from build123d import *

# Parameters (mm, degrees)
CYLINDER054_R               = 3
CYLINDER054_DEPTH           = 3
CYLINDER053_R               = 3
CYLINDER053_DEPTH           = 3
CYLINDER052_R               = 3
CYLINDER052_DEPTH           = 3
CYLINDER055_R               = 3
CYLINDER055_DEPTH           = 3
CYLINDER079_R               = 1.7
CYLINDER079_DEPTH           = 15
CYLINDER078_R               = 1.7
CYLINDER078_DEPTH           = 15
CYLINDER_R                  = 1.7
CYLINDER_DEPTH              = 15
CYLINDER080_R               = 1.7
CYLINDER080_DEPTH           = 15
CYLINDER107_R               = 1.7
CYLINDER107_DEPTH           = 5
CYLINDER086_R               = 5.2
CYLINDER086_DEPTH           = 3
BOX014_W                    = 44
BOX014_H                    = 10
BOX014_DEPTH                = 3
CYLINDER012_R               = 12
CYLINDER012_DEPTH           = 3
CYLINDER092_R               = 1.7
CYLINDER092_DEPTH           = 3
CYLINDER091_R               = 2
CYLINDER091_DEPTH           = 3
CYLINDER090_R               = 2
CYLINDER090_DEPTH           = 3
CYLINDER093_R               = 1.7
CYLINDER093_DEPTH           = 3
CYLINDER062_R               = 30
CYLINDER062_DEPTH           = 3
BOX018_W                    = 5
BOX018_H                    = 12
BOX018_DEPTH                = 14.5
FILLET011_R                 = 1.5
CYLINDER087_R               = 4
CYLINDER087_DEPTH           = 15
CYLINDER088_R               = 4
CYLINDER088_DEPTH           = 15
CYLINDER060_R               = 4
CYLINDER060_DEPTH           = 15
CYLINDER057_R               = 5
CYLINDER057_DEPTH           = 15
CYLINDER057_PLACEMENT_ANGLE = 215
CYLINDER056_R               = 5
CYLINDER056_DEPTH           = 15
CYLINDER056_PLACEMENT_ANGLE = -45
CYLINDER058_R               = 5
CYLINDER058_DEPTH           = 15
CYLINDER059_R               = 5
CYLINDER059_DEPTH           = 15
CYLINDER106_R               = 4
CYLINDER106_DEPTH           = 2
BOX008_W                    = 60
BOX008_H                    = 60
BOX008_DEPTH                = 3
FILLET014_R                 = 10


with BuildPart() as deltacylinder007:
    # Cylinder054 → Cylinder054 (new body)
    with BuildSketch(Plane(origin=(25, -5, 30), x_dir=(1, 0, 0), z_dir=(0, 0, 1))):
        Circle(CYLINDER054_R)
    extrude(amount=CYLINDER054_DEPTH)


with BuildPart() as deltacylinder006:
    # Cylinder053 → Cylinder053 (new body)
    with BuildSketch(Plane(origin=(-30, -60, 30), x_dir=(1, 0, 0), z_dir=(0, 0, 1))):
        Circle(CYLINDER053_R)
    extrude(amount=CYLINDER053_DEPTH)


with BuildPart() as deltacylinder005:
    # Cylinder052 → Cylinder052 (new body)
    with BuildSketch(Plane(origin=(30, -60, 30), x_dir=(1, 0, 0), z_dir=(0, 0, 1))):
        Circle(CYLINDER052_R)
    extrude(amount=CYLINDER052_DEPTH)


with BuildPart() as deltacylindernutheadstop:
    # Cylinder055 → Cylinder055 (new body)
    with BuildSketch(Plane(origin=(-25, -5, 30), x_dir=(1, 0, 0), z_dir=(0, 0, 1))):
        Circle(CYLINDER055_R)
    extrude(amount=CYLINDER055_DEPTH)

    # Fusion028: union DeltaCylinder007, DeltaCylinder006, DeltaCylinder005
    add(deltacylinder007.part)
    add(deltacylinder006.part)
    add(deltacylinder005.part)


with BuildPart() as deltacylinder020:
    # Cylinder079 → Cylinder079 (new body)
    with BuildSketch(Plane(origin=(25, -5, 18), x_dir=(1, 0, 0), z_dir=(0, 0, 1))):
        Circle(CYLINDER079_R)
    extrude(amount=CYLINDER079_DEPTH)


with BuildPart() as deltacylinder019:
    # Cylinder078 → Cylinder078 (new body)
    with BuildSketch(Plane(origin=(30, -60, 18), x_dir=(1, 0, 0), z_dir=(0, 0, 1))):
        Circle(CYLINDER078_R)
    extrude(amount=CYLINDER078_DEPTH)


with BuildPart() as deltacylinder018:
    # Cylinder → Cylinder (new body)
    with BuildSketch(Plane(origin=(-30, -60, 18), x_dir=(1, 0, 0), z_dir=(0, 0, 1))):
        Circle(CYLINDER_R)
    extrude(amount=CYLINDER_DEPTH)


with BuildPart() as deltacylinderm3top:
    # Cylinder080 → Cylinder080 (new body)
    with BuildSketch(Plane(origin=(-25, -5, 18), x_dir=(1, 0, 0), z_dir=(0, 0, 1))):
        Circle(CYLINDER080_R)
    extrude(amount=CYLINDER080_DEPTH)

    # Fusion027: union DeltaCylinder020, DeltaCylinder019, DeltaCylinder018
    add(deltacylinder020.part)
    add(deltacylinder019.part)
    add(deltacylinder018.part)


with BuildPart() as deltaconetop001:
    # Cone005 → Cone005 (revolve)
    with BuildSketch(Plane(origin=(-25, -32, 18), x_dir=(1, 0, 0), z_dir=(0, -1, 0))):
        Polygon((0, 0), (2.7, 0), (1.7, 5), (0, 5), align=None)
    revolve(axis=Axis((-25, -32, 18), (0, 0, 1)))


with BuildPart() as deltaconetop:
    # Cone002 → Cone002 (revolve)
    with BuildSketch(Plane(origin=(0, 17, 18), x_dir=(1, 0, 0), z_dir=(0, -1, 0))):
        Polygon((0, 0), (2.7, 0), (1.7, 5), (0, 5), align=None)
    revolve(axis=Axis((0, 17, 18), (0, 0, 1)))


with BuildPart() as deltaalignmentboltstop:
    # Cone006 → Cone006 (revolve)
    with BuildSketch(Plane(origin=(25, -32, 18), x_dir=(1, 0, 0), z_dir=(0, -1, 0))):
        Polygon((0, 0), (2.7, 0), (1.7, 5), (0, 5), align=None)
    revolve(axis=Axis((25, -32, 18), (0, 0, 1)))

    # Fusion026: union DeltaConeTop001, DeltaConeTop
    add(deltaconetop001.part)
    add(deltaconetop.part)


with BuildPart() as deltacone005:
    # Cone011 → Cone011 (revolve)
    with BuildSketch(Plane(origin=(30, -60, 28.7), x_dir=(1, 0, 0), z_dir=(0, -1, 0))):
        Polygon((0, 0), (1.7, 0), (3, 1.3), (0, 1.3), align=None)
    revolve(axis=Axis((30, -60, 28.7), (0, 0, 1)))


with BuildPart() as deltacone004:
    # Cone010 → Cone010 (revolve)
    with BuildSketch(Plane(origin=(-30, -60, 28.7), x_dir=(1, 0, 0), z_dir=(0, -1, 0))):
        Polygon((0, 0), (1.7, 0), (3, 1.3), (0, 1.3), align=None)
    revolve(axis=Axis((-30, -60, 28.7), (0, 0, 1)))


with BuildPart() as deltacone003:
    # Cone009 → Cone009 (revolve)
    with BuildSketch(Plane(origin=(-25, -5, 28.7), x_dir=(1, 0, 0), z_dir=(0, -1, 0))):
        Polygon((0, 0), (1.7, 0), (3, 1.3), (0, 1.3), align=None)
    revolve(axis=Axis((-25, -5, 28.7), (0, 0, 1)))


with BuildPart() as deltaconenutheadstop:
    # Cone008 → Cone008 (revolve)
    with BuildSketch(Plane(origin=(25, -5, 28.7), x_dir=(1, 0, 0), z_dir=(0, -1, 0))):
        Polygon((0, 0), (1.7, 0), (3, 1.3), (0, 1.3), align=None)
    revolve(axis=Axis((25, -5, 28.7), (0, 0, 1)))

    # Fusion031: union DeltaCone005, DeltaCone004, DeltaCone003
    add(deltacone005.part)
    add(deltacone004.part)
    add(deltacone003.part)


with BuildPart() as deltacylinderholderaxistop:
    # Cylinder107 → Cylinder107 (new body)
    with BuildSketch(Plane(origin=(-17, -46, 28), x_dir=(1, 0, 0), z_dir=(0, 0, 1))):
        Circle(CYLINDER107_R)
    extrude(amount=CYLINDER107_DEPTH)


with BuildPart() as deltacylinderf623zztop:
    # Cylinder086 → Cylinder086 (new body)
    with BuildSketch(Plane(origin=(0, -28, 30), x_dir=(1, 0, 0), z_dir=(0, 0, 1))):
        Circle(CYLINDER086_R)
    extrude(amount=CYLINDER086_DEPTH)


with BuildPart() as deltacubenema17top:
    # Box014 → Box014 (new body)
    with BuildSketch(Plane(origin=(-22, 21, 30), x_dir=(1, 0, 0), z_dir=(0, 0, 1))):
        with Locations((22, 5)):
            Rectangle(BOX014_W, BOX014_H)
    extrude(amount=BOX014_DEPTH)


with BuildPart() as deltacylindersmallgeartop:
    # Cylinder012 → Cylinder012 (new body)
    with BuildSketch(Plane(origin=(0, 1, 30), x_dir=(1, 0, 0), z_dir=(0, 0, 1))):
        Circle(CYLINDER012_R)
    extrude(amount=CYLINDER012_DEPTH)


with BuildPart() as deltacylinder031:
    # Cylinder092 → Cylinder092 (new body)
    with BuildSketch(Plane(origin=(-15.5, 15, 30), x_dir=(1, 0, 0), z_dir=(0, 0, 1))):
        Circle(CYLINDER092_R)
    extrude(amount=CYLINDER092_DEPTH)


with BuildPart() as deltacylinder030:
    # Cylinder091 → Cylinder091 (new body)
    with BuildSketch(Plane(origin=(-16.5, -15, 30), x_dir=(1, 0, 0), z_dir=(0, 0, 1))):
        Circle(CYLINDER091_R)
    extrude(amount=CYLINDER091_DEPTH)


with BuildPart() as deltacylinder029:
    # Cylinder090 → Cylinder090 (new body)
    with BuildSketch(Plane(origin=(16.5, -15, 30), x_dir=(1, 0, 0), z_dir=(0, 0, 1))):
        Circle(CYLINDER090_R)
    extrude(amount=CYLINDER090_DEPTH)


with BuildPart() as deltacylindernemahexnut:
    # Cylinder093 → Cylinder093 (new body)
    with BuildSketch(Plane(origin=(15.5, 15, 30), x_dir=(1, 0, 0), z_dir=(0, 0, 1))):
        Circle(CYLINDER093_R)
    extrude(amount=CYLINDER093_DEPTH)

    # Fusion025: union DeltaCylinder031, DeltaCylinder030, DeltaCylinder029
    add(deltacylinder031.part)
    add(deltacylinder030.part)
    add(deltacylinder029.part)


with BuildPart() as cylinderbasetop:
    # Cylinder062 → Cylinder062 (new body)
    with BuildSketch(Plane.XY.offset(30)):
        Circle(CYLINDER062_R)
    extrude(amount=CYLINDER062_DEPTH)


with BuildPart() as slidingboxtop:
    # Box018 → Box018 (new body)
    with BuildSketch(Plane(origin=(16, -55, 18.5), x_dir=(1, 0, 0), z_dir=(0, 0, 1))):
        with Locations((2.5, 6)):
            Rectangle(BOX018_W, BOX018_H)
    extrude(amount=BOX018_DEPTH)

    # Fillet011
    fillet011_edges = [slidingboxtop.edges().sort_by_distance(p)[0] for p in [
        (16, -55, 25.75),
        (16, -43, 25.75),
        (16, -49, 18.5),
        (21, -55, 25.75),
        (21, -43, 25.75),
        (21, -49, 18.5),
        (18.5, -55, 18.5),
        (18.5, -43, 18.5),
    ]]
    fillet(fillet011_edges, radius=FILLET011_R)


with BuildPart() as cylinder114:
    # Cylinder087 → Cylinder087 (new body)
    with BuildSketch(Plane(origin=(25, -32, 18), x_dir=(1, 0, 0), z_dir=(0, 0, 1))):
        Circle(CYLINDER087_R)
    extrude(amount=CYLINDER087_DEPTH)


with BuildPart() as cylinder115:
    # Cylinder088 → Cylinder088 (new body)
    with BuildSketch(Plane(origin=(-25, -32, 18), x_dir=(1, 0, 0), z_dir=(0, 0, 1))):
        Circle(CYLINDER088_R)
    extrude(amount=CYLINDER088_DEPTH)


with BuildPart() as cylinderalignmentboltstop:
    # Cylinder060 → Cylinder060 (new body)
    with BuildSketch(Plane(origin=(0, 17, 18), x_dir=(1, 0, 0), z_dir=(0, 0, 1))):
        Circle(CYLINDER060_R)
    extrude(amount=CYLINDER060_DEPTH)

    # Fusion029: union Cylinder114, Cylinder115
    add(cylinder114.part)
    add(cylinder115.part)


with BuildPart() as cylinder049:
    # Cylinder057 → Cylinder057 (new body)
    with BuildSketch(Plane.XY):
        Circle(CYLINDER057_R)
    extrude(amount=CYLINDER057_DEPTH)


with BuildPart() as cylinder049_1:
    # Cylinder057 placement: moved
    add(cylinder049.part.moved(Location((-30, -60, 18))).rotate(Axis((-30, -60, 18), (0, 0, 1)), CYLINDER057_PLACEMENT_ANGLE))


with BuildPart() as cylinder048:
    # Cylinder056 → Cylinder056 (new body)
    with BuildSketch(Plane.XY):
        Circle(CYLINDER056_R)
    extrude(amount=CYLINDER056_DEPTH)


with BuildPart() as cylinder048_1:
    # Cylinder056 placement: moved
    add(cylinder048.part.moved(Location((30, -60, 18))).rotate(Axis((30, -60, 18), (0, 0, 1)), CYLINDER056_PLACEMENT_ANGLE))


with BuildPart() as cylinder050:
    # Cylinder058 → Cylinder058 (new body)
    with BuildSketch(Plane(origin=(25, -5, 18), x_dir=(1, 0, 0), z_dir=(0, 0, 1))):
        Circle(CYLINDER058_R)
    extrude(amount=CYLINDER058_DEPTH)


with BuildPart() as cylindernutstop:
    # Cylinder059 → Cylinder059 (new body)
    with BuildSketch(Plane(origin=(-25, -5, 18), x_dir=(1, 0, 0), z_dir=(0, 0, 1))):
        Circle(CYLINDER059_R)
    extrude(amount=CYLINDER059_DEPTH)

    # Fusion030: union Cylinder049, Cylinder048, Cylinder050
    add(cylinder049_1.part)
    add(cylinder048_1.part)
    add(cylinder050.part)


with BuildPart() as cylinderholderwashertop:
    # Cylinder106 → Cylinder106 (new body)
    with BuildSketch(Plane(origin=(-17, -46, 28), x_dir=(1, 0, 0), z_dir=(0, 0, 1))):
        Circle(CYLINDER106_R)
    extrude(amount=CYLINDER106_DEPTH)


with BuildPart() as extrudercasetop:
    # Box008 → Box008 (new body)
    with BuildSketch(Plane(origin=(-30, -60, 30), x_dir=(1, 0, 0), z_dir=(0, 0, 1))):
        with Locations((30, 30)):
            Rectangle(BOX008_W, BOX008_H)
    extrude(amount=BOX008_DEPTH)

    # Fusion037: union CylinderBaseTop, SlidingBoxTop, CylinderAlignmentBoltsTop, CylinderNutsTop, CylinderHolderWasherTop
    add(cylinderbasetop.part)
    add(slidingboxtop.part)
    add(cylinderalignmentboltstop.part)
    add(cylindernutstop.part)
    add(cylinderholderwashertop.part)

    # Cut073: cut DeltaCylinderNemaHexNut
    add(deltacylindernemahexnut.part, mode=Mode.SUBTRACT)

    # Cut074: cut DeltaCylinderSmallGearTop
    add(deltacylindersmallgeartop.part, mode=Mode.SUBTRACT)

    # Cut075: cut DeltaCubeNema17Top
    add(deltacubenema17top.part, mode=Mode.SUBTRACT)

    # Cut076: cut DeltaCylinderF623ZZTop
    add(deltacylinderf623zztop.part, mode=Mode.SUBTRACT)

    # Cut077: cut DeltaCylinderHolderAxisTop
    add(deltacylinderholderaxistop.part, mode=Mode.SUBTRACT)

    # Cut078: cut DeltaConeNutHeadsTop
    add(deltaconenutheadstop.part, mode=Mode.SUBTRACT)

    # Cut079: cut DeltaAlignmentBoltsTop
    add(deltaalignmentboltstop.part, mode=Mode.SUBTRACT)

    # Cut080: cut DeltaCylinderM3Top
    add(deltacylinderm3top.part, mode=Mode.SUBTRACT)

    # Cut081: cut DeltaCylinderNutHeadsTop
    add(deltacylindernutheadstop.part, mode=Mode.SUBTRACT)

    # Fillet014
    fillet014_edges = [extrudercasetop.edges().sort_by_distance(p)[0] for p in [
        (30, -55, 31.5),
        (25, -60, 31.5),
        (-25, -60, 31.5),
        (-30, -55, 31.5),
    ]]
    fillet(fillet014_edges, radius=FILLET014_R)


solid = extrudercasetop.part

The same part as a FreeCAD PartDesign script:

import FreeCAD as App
import Part
import Sketcher

V = App.Vector
Q = App.Units.Quantity


def edges_at(feature, points):
    """Names of the edges that pass closest to the given points."""
    edges = feature.Shape.Edges
    near = lambda p: min(range(len(edges)), key=lambda i: edges[i].distToShape(Part.Vertex(*p))[0])
    return sorted({f"Edge{near(p) + 1}" for p in points})

doc = App.newDocument("Part")
body = doc.addObject("PartDesign::Body", "Body")

sketch1 = body.newObject("Sketcher::SketchObject", "Sketch")
sketch1.AttachmentSupport = (doc.getObject("XY_Plane"), [""])
sketch1.MapMode = "FlatFace"
sketch1.AttachmentOffset = App.Placement(V(0, 0, 30), App.Rotation())
sketch1.addGeometry(Part.Circle(V(25, -5, 0), V(0, 0, 1), 3), False)
sketch1.addConstraint(Sketcher.Constraint("Diameter", 0, 6.0))
sketch1.addConstraint(Sketcher.Constraint("DistanceX", -1, 1, 0, 3, 25.0))
sketch1.addConstraint(Sketcher.Constraint("DistanceY", 0, 3, -1, 1, 5.0))
pad1 = body.newObject("PartDesign::Pad", "Pad")
pad1.Profile = sketch1
pad1.Length = 3
body2 = doc.addObject("PartDesign::Body", "Body001")

sketch2 = body2.newObject("Sketcher::SketchObject", "Sketch001")
sketch2.AttachmentSupport = (doc.getObject("XY_Plane001"), [""])
sketch2.MapMode = "FlatFace"
sketch2.AttachmentOffset = App.Placement(V(0, 0, 30), App.Rotation())
sketch2.addGeometry(Part.Circle(V(-30, -60, 0), V(0, 0, 1), 3), False)
sketch2.addConstraint(Sketcher.Constraint("Diameter", 0, 6.0))
sketch2.addConstraint(Sketcher.Constraint("DistanceX", 0, 3, -1, 1, 30.0))
sketch2.addConstraint(Sketcher.Constraint("DistanceY", 0, 3, -1, 1, 60.0))
pad2 = body2.newObject("PartDesign::Pad", "Pad001")
pad2.Profile = sketch2
pad2.Length = 3
body3 = doc.addObject("PartDesign::Body", "Body002")

sketch3 = body3.newObject("Sketcher::SketchObject", "Sketch002")
sketch3.AttachmentSupport = (doc.getObject("XY_Plane002"), [""])
sketch3.MapMode = "FlatFace"
sketch3.AttachmentOffset = App.Placement(V(0, 0, 30), App.Rotation())
sketch3.addGeometry(Part.Circle(V(30, -60, 0), V(0, 0, 1), 3), False)
sketch3.addConstraint(Sketcher.Constraint("Diameter", 0, 6.0))
sketch3.addConstraint(Sketcher.Constraint("DistanceX", -1, 1, 0, 3, 30.0))
sketch3.addConstraint(Sketcher.Constraint("DistanceY", 0, 3, -1, 1, 60.0))
pad3 = body3.newObject("PartDesign::Pad", "Pad002")
pad3.Profile = sketch3
pad3.Length = 3
body4 = doc.addObject("PartDesign::Body", "Body003")
body4.AllowCompound = True

sketch4 = body4.newObject("Sketcher::SketchObject", "Sketch003")
sketch4.AttachmentSupport = (doc.getObject("XY_Plane003"), [""])
sketch4.MapMode = "FlatFace"
sketch4.AttachmentOffset = App.Placement(V(0, 0, 30), App.Rotation())
sketch4.addGeometry(Part.Circle(V(-25, -5, 0), V(0, 0, 1), 3), False)
sketch4.addConstraint(Sketcher.Constraint("Diameter", 0, 6.0))
sketch4.addConstraint(Sketcher.Constraint("DistanceX", 0, 3, -1, 1, 25.0))
sketch4.addConstraint(Sketcher.Constraint("DistanceY", 0, 3, -1, 1, 5.0))
pad4 = body4.newObject("PartDesign::Pad", "Pad003")
pad4.Profile = sketch4
pad4.Length = 3
doc.recompute()

boolean = body4.newObject("PartDesign::Boolean", "Boolean")
boolean.Type = "Fuse"
boolean.addObjects([body])
doc.recompute()

boolean2 = body4.newObject("PartDesign::Boolean", "Boolean001")
boolean2.Type = "Fuse"
boolean2.addObjects([body2])
doc.recompute()

boolean3 = body4.newObject("PartDesign::Boolean", "Boolean002")
boolean3.Type = "Fuse"
boolean3.addObjects([body3])
body5 = doc.addObject("PartDesign::Body", "Body004")

sketch5 = body5.newObject("Sketcher::SketchObject", "Sketch004")
sketch5.AttachmentSupport = (doc.getObject("XY_Plane004"), [""])
sketch5.MapMode = "FlatFace"
sketch5.AttachmentOffset = App.Placement(V(0, 0, 18), App.Rotation())
sketch5.addGeometry(Part.Circle(V(25, -5, 0), V(0, 0, 1), 1.7), False)
sketch5.addConstraint(Sketcher.Constraint("Diameter", 0, 3.4))
sketch5.addConstraint(Sketcher.Constraint("DistanceX", -1, 1, 0, 3, 25.0))
sketch5.addConstraint(Sketcher.Constraint("DistanceY", 0, 3, -1, 1, 5.0))
pad5 = body5.newObject("PartDesign::Pad", "Pad004")
pad5.Profile = sketch5
pad5.Length = 15
body6 = doc.addObject("PartDesign::Body", "Body005")

sketch6 = body6.newObject("Sketcher::SketchObject", "Sketch005")
sketch6.AttachmentSupport = (doc.getObject("XY_Plane005"), [""])
sketch6.MapMode = "FlatFace"
sketch6.AttachmentOffset = App.Placement(V(0, 0, 18), App.Rotation())
sketch6.addGeometry(Part.Circle(V(30, -60, 0), V(0, 0, 1), 1.7), False)
sketch6.addConstraint(Sketcher.Constraint("Diameter", 0, 3.4))
sketch6.addConstraint(Sketcher.Constraint("DistanceX", -1, 1, 0, 3, 30.0))
sketch6.addConstraint(Sketcher.Constraint("DistanceY", 0, 3, -1, 1, 60.0))
pad6 = body6.newObject("PartDesign::Pad", "Pad005")
pad6.Profile = sketch6
pad6.Length = 15
body7 = doc.addObject("PartDesign::Body", "Body006")

sketch7 = body7.newObject("Sketcher::SketchObject", "Sketch006")
sketch7.AttachmentSupport = (doc.getObject("XY_Plane006"), [""])
sketch7.MapMode = "FlatFace"
sketch7.AttachmentOffset = App.Placement(V(0, 0, 18), App.Rotation())
sketch7.addGeometry(Part.Circle(V(-30, -60, 0), V(0, 0, 1), 1.7), False)
sketch7.addConstraint(Sketcher.Constraint("Diameter", 0, 3.4))
sketch7.addConstraint(Sketcher.Constraint("DistanceX", 0, 3, -1, 1, 30.0))
sketch7.addConstraint(Sketcher.Constraint("DistanceY", 0, 3, -1, 1, 60.0))
pad7 = body7.newObject("PartDesign::Pad", "Pad006")
pad7.Profile = sketch7
pad7.Length = 15
body8 = doc.addObject("PartDesign::Body", "Body007")
body8.AllowCompound = True

sketch8 = body8.newObject("Sketcher::SketchObject", "Sketch007")
sketch8.AttachmentSupport = (doc.getObject("XY_Plane007"), [""])
sketch8.MapMode = "FlatFace"
sketch8.AttachmentOffset = App.Placement(V(0, 0, 18), App.Rotation())
sketch8.addGeometry(Part.Circle(V(-25, -5, 0), V(0, 0, 1), 1.7), False)
sketch8.addConstraint(Sketcher.Constraint("Diameter", 0, 3.4))
sketch8.addConstraint(Sketcher.Constraint("DistanceX", 0, 3, -1, 1, 25.0))
sketch8.addConstraint(Sketcher.Constraint("DistanceY", 0, 3, -1, 1, 5.0))
pad8 = body8.newObject("PartDesign::Pad", "Pad007")
pad8.Profile = sketch8
pad8.Length = 15
doc.recompute()

boolean4 = body8.newObject("PartDesign::Boolean", "Boolean003")
boolean4.Type = "Fuse"
boolean4.addObjects([body5])
doc.recompute()

boolean5 = body8.newObject("PartDesign::Boolean", "Boolean004")
boolean5.Type = "Fuse"
boolean5.addObjects([body6])
doc.recompute()

boolean6 = body8.newObject("PartDesign::Boolean", "Boolean005")
boolean6.Type = "Fuse"
boolean6.addObjects([body7])
body9 = doc.addObject("PartDesign::Body", "Body008")

sketch9 = body9.newObject("Sketcher::SketchObject", "Sketch008")
sketch9.AttachmentSupport = (doc.getObject("XZ_Plane008"), [""])
sketch9.MapMode = "FlatFace"
sketch9.AttachmentOffset = App.Placement(V(0, 0, 32), App.Rotation())
sketch9.addGeometry(Part.LineSegment(V(-25, 18, 0), V(-22.3, 18, 0)), False)
sketch9.addGeometry(Part.LineSegment(V(-22.3, 18, 0), V(-23.3, 23, 0)), False)
sketch9.addGeometry(Part.LineSegment(V(-23.3, 23, 0), V(-25, 23, 0)), False)
sketch9.addGeometry(Part.LineSegment(V(-25, 23, 0), V(-25, 18, 0)), False)
sketch9.addGeometry(Part.LineSegment(V(-25, 18, 0), V(-25, 23, 0)), True)
sketch9.addConstraint(Sketcher.Constraint("Coincident", 0, 2, 1, 1))
sketch9.addConstraint(Sketcher.Constraint("Coincident", 1, 2, 2, 1))
sketch9.addConstraint(Sketcher.Constraint("Coincident", 2, 2, 3, 1))
sketch9.addConstraint(Sketcher.Constraint("Coincident", 3, 2, 0, 1))
sketch9.addConstraint(Sketcher.Constraint("Horizontal", 0))
sketch9.addConstraint(Sketcher.Constraint("Horizontal", 2))
sketch9.addConstraint(Sketcher.Constraint("Vertical", 3))
sketch9.addConstraint(Sketcher.Constraint("Vertical", 4))
sketch9.addConstraint(Sketcher.Constraint("Coincident", 4, 1, 3, 2))
sketch9.addConstraint(Sketcher.Constraint("Horizontal", 1, 2, 4, 2))
sketch9.addConstraint(Sketcher.Constraint("DistanceY", 3, 2, 3, 1, 5.0))
sketch9.addConstraint(Sketcher.Constraint("DistanceX", 0, 1, 0, 2, 2.7))
sketch9.addConstraint(Sketcher.Constraint("DistanceX", 2, 2, 2, 1, 1.7))
sketch9.addConstraint(Sketcher.Constraint("DistanceY", -1, 1, 0, 2, 18.0))
sketch9.addConstraint(Sketcher.Constraint("DistanceX", 2, 2, -1, 1, 25.0))
revolution = body9.newObject("PartDesign::Revolution", "Revolution")
revolution.Profile = sketch9
revolution.ReferenceAxis = (sketch9, ["Axis0"])
revolution.Angle = 360
body10 = doc.addObject("PartDesign::Body", "Body009")

sketch10 = body10.newObject("Sketcher::SketchObject", "Sketch009")
sketch10.AttachmentSupport = (doc.getObject("XZ_Plane009"), [""])
sketch10.MapMode = "FlatFace"
sketch10.AttachmentOffset = App.Placement(V(0, 0, -17), App.Rotation())
sketch10.addGeometry(Part.LineSegment(V(0, 18, 0), V(2.7, 18, 0)), False)
sketch10.addGeometry(Part.LineSegment(V(2.7, 18, 0), V(1.7, 23, 0)), False)
sketch10.addGeometry(Part.LineSegment(V(1.7, 23, 0), V(0, 23, 0)), False)
sketch10.addGeometry(Part.LineSegment(V(0, 23, 0), V(0, 18, 0)), False)
sketch10.addConstraint(Sketcher.Constraint("Coincident", 0, 2, 1, 1))
sketch10.addConstraint(Sketcher.Constraint("Coincident", 1, 2, 2, 1))
sketch10.addConstraint(Sketcher.Constraint("Coincident", 2, 2, 3, 1))
sketch10.addConstraint(Sketcher.Constraint("Coincident", 3, 2, 0, 1))
sketch10.addConstraint(Sketcher.Constraint("Horizontal", 0))
sketch10.addConstraint(Sketcher.Constraint("Horizontal", 2))
sketch10.addConstraint(Sketcher.Constraint("Vertical", 3))
sketch10.addConstraint(Sketcher.Constraint("PointOnObject", 2, 2, -2))
sketch10.addConstraint(Sketcher.Constraint("DistanceY", 3, 2, 3, 1, 5.0))
sketch10.addConstraint(Sketcher.Constraint("DistanceX", 0, 1, 0, 2, 2.7))
sketch10.addConstraint(Sketcher.Constraint("DistanceX", 2, 2, 2, 1, 1.7))
sketch10.addConstraint(Sketcher.Constraint("DistanceY", -1, 1, 0, 2, 18.0))
revolution2 = body10.newObject("PartDesign::Revolution", "Revolution001")
revolution2.Profile = sketch10
revolution2.ReferenceAxis = (sketch10, ["V_Axis"])
revolution2.Angle = 360
body11 = doc.addObject("PartDesign::Body", "Body010")
body11.AllowCompound = True

sketch11 = body11.newObject("Sketcher::SketchObject", "Sketch010")
sketch11.AttachmentSupport = (doc.getObject("XZ_Plane010"), [""])
sketch11.MapMode = "FlatFace"
sketch11.AttachmentOffset = App.Placement(V(0, 0, 32), App.Rotation())
sketch11.addGeometry(Part.LineSegment(V(25, 18, 0), V(27.7, 18, 0)), False)
sketch11.addGeometry(Part.LineSegment(V(27.7, 18, 0), V(26.7, 23, 0)), False)
sketch11.addGeometry(Part.LineSegment(V(26.7, 23, 0), V(25, 23, 0)), False)
sketch11.addGeometry(Part.LineSegment(V(25, 23, 0), V(25, 18, 0)), False)
sketch11.addGeometry(Part.LineSegment(V(25, 18, 0), V(25, 23, 0)), True)
sketch11.addConstraint(Sketcher.Constraint("Coincident", 0, 2, 1, 1))
sketch11.addConstraint(Sketcher.Constraint("Coincident", 1, 2, 2, 1))
sketch11.addConstraint(Sketcher.Constraint("Coincident", 2, 2, 3, 1))
sketch11.addConstraint(Sketcher.Constraint("Coincident", 3, 2, 0, 1))
sketch11.addConstraint(Sketcher.Constraint("Horizontal", 0))
sketch11.addConstraint(Sketcher.Constraint("Horizontal", 2))
sketch11.addConstraint(Sketcher.Constraint("Vertical", 3))
sketch11.addConstraint(Sketcher.Constraint("Vertical", 4))
sketch11.addConstraint(Sketcher.Constraint("Coincident", 4, 1, 3, 2))
sketch11.addConstraint(Sketcher.Constraint("Horizontal", 1, 2, 4, 2))
sketch11.addConstraint(Sketcher.Constraint("DistanceY", 3, 2, 3, 1, 5.0))
sketch11.addConstraint(Sketcher.Constraint("DistanceX", 0, 1, 0, 2, 2.7))
sketch11.addConstraint(Sketcher.Constraint("DistanceX", 2, 2, 2, 1, 1.7))
sketch11.addConstraint(Sketcher.Constraint("DistanceY", -1, 1, 0, 2, 18.0))
sketch11.addConstraint(Sketcher.Constraint("DistanceX", -1, 1, 2, 2, 25.0))
revolution3 = body11.newObject("PartDesign::Revolution", "Revolution002")
revolution3.Profile = sketch11
revolution3.ReferenceAxis = (sketch11, ["Axis0"])
revolution3.Angle = 360
doc.recompute()

boolean7 = body11.newObject("PartDesign::Boolean", "Boolean006")
boolean7.Type = "Fuse"
boolean7.addObjects([body9])
doc.recompute()

boolean8 = body11.newObject("PartDesign::Boolean", "Boolean007")
boolean8.Type = "Fuse"
boolean8.addObjects([body10])
body12 = doc.addObject("PartDesign::Body", "Body011")

sketch12 = body12.newObject("Sketcher::SketchObject", "Sketch011")
sketch12.AttachmentSupport = (doc.getObject("XZ_Plane011"), [""])
sketch12.MapMode = "FlatFace"
sketch12.AttachmentOffset = App.Placement(V(0, 0, 60), App.Rotation())
sketch12.addGeometry(Part.LineSegment(V(30, 28.7, 0), V(31.7, 28.7, 0)), False)
sketch12.addGeometry(Part.LineSegment(V(31.7, 28.7, 0), V(33, 30, 0)), False)
sketch12.addGeometry(Part.LineSegment(V(33, 30, 0), V(30, 30, 0)), False)
sketch12.addGeometry(Part.LineSegment(V(30, 30, 0), V(30, 28.7, 0)), False)
sketch12.addGeometry(Part.LineSegment(V(30, 28.7, 0), V(30, 30, 0)), True)
sketch12.addConstraint(Sketcher.Constraint("Coincident", 0, 2, 1, 1))
sketch12.addConstraint(Sketcher.Constraint("Coincident", 1, 2, 2, 1))
sketch12.addConstraint(Sketcher.Constraint("Coincident", 2, 2, 3, 1))
sketch12.addConstraint(Sketcher.Constraint("Coincident", 3, 2, 0, 1))
sketch12.addConstraint(Sketcher.Constraint("Horizontal", 0))
sketch12.addConstraint(Sketcher.Constraint("Horizontal", 2))
sketch12.addConstraint(Sketcher.Constraint("Vertical", 3))
sketch12.addConstraint(Sketcher.Constraint("Vertical", 4))
sketch12.addConstraint(Sketcher.Constraint("Coincident", 4, 1, 3, 2))
sketch12.addConstraint(Sketcher.Constraint("Horizontal", 1, 2, 4, 2))
sketch12.addConstraint(Sketcher.Constraint("DistanceX", 2, 2, 2, 1, 3.0))
sketch12.addConstraint(Sketcher.Constraint("Angle", 1, Q("45 deg")))
sketch12.addConstraint(Sketcher.Constraint("DistanceX", 0, 1, 0, 2, 1.7))
sketch12.addConstraint(Sketcher.Constraint("DistanceX", -1, 1, 1, 2, 33.0))
sketch12.addConstraint(Sketcher.Constraint("DistanceY", -1, 1, 1, 2, 30.0))
revolution4 = body12.newObject("PartDesign::Revolution", "Revolution003")
revolution4.Profile = sketch12
revolution4.ReferenceAxis = (sketch12, ["Axis0"])
revolution4.Angle = 360
body13 = doc.addObject("PartDesign::Body", "Body012")

sketch13 = body13.newObject("Sketcher::SketchObject", "Sketch012")
sketch13.AttachmentSupport = (doc.getObject("XZ_Plane012"), [""])
sketch13.MapMode = "FlatFace"
sketch13.AttachmentOffset = App.Placement(V(0, 0, 60), App.Rotation())
sketch13.addGeometry(Part.LineSegment(V(-30, 28.7, 0), V(-28.3, 28.7, 0)), False)
sketch13.addGeometry(Part.LineSegment(V(-28.3, 28.7, 0), V(-27, 30, 0)), False)
sketch13.addGeometry(Part.LineSegment(V(-27, 30, 0), V(-30, 30, 0)), False)
sketch13.addGeometry(Part.LineSegment(V(-30, 30, 0), V(-30, 28.7, 0)), False)
sketch13.addGeometry(Part.LineSegment(V(-30, 28.7, 0), V(-30, 30, 0)), True)
sketch13.addConstraint(Sketcher.Constraint("Coincident", 0, 2, 1, 1))
sketch13.addConstraint(Sketcher.Constraint("Coincident", 1, 2, 2, 1))
sketch13.addConstraint(Sketcher.Constraint("Coincident", 2, 2, 3, 1))
sketch13.addConstraint(Sketcher.Constraint("Coincident", 3, 2, 0, 1))
sketch13.addConstraint(Sketcher.Constraint("Horizontal", 0))
sketch13.addConstraint(Sketcher.Constraint("Horizontal", 2))
sketch13.addConstraint(Sketcher.Constraint("Vertical", 3))
sketch13.addConstraint(Sketcher.Constraint("Vertical", 4))
sketch13.addConstraint(Sketcher.Constraint("Coincident", 4, 1, 3, 2))
sketch13.addConstraint(Sketcher.Constraint("Horizontal", 1, 2, 4, 2))
sketch13.addConstraint(Sketcher.Constraint("DistanceX", 2, 2, 2, 1, 3.0))
sketch13.addConstraint(Sketcher.Constraint("Angle", 1, Q("45 deg")))
sketch13.addConstraint(Sketcher.Constraint("DistanceX", 0, 1, 0, 2, 1.7))
sketch13.addConstraint(Sketcher.Constraint("DistanceX", 1, 2, -1, 1, 27.0))
sketch13.addConstraint(Sketcher.Constraint("DistanceY", -1, 1, 1, 2, 30.0))
revolution5 = body13.newObject("PartDesign::Revolution", "Revolution004")
revolution5.Profile = sketch13
revolution5.ReferenceAxis = (sketch13, ["Axis0"])
revolution5.Angle = 360
body14 = doc.addObject("PartDesign::Body", "Body013")

sketch14 = body14.newObject("Sketcher::SketchObject", "Sketch013")
sketch14.AttachmentSupport = (doc.getObject("XZ_Plane013"), [""])
sketch14.MapMode = "FlatFace"
sketch14.AttachmentOffset = App.Placement(V(0, 0, 5), App.Rotation())
sketch14.addGeometry(Part.LineSegment(V(-25, 28.7, 0), V(-23.3, 28.7, 0)), False)
sketch14.addGeometry(Part.LineSegment(V(-23.3, 28.7, 0), V(-22, 30, 0)), False)
sketch14.addGeometry(Part.LineSegment(V(-22, 30, 0), V(-25, 30, 0)), False)
sketch14.addGeometry(Part.LineSegment(V(-25, 30, 0), V(-25, 28.7, 0)), False)
sketch14.addGeometry(Part.LineSegment(V(-25, 28.7, 0), V(-25, 30, 0)), True)
sketch14.addConstraint(Sketcher.Constraint("Coincident", 0, 2, 1, 1))
sketch14.addConstraint(Sketcher.Constraint("Coincident", 1, 2, 2, 1))
sketch14.addConstraint(Sketcher.Constraint("Coincident", 2, 2, 3, 1))
sketch14.addConstraint(Sketcher.Constraint("Coincident", 3, 2, 0, 1))
sketch14.addConstraint(Sketcher.Constraint("Horizontal", 0))
sketch14.addConstraint(Sketcher.Constraint("Horizontal", 2))
sketch14.addConstraint(Sketcher.Constraint("Vertical", 3))
sketch14.addConstraint(Sketcher.Constraint("Vertical", 4))
sketch14.addConstraint(Sketcher.Constraint("Coincident", 4, 1, 3, 2))
sketch14.addConstraint(Sketcher.Constraint("Horizontal", 1, 2, 4, 2))
sketch14.addConstraint(Sketcher.Constraint("DistanceX", 2, 2, 2, 1, 3.0))
sketch14.addConstraint(Sketcher.Constraint("Angle", 1, Q("45 deg")))
sketch14.addConstraint(Sketcher.Constraint("DistanceX", 0, 1, 0, 2, 1.7))
sketch14.addConstraint(Sketcher.Constraint("DistanceX", 1, 2, -1, 1, 22.0))
sketch14.addConstraint(Sketcher.Constraint("DistanceY", -1, 1, 1, 2, 30.0))
revolution6 = body14.newObject("PartDesign::Revolution", "Revolution005")
revolution6.Profile = sketch14
revolution6.ReferenceAxis = (sketch14, ["Axis0"])
revolution6.Angle = 360
body15 = doc.addObject("PartDesign::Body", "Body014")
body15.AllowCompound = True

sketch15 = body15.newObject("Sketcher::SketchObject", "Sketch014")
sketch15.AttachmentSupport = (doc.getObject("XZ_Plane014"), [""])
sketch15.MapMode = "FlatFace"
sketch15.AttachmentOffset = App.Placement(V(0, 0, 5), App.Rotation())
sketch15.addGeometry(Part.LineSegment(V(25, 28.7, 0), V(26.7, 28.7, 0)), False)
sketch15.addGeometry(Part.LineSegment(V(26.7, 28.7, 0), V(28, 30, 0)), False)
sketch15.addGeometry(Part.LineSegment(V(28, 30, 0), V(25, 30, 0)), False)
sketch15.addGeometry(Part.LineSegment(V(25, 30, 0), V(25, 28.7, 0)), False)
sketch15.addGeometry(Part.LineSegment(V(25, 28.7, 0), V(25, 30, 0)), True)
sketch15.addConstraint(Sketcher.Constraint("Coincident", 0, 2, 1, 1))
sketch15.addConstraint(Sketcher.Constraint("Coincident", 1, 2, 2, 1))
sketch15.addConstraint(Sketcher.Constraint("Coincident", 2, 2, 3, 1))
sketch15.addConstraint(Sketcher.Constraint("Coincident", 3, 2, 0, 1))
sketch15.addConstraint(Sketcher.Constraint("Horizontal", 0))
sketch15.addConstraint(Sketcher.Constraint("Horizontal", 2))
sketch15.addConstraint(Sketcher.Constraint("Vertical", 3))
sketch15.addConstraint(Sketcher.Constraint("Vertical", 4))
sketch15.addConstraint(Sketcher.Constraint("Coincident", 4, 1, 3, 2))
sketch15.addConstraint(Sketcher.Constraint("Horizontal", 1, 2, 4, 2))
sketch15.addConstraint(Sketcher.Constraint("DistanceX", 2, 2, 2, 1, 3.0))
sketch15.addConstraint(Sketcher.Constraint("Angle", 1, Q("45 deg")))
sketch15.addConstraint(Sketcher.Constraint("DistanceX", 0, 1, 0, 2, 1.7))
sketch15.addConstraint(Sketcher.Constraint("DistanceX", -1, 1, 1, 2, 28.0))
sketch15.addConstraint(Sketcher.Constraint("DistanceY", -1, 1, 1, 2, 30.0))
revolution7 = body15.newObject("PartDesign::Revolution", "Revolution006")
revolution7.Profile = sketch15
revolution7.ReferenceAxis = (sketch15, ["Axis0"])
revolution7.Angle = 360
doc.recompute()

boolean9 = body15.newObject("PartDesign::Boolean", "Boolean008")
boolean9.Type = "Fuse"
boolean9.addObjects([body12])
doc.recompute()

boolean10 = body15.newObject("PartDesign::Boolean", "Boolean009")
boolean10.Type = "Fuse"
boolean10.addObjects([body13])
doc.recompute()

boolean11 = body15.newObject("PartDesign::Boolean", "Boolean010")
boolean11.Type = "Fuse"
boolean11.addObjects([body14])
body16 = doc.addObject("PartDesign::Body", "Body015")

sketch16 = body16.newObject("Sketcher::SketchObject", "Sketch015")
sketch16.AttachmentSupport = (doc.getObject("XY_Plane015"), [""])
sketch16.MapMode = "FlatFace"
sketch16.AttachmentOffset = App.Placement(V(0, 0, 28), App.Rotation())
sketch16.addGeometry(Part.Circle(V(-17, -46, 0), V(0, 0, 1), 1.7), False)
sketch16.addConstraint(Sketcher.Constraint("Diameter", 0, 3.4))
sketch16.addConstraint(Sketcher.Constraint("DistanceX", 0, 3, -1, 1, 17.0))
sketch16.addConstraint(Sketcher.Constraint("DistanceY", 0, 3, -1, 1, 46.0))
pad9 = body16.newObject("PartDesign::Pad", "Pad008")
pad9.Profile = sketch16
pad9.Length = 5
body17 = doc.addObject("PartDesign::Body", "Body016")

sketch17 = body17.newObject("Sketcher::SketchObject", "Sketch016")
sketch17.AttachmentSupport = (doc.getObject("XY_Plane016"), [""])
sketch17.MapMode = "FlatFace"
sketch17.AttachmentOffset = App.Placement(V(0, 0, 30), App.Rotation())
sketch17.addGeometry(Part.Circle(V(0, -28, 0), V(0, 0, 1), 5.2), False)
sketch17.addConstraint(Sketcher.Constraint("PointOnObject", 0, 3, -2))
sketch17.addConstraint(Sketcher.Constraint("Diameter", 0, 10.4))
sketch17.addConstraint(Sketcher.Constraint("DistanceY", 0, 3, -1, 1, 28.0))
pad10 = body17.newObject("PartDesign::Pad", "Pad009")
pad10.Profile = sketch17
pad10.Length = 3
body18 = doc.addObject("PartDesign::Body", "Body017")

sketch18 = body18.newObject("Sketcher::SketchObject", "Sketch017")
sketch18.AttachmentSupport = (doc.getObject("XY_Plane017"), [""])
sketch18.MapMode = "FlatFace"
sketch18.AttachmentOffset = App.Placement(V(0, 0, 30), App.Rotation())
sketch18.addGeometry(Part.LineSegment(V(-22, 31, 0), V(-22, 21, 0)), False)
sketch18.addGeometry(Part.LineSegment(V(-22, 21, 0), V(22, 21, 0)), False)
sketch18.addGeometry(Part.LineSegment(V(22, 21, 0), V(22, 31, 0)), False)
sketch18.addGeometry(Part.LineSegment(V(22, 31, 0), V(-22, 31, 0)), False)
sketch18.addConstraint(Sketcher.Constraint("Coincident", 0, 2, 1, 1))
sketch18.addConstraint(Sketcher.Constraint("Coincident", 1, 2, 2, 1))
sketch18.addConstraint(Sketcher.Constraint("Coincident", 2, 2, 3, 1))
sketch18.addConstraint(Sketcher.Constraint("Coincident", 3, 2, 0, 1))
sketch18.addConstraint(Sketcher.Constraint("Vertical", 0))
sketch18.addConstraint(Sketcher.Constraint("Horizontal", 1))
sketch18.addConstraint(Sketcher.Constraint("Vertical", 2))
sketch18.addConstraint(Sketcher.Constraint("Horizontal", 3))
sketch18.addConstraint(Sketcher.Constraint("DistanceX", 1, 1, 1, 2, 44.0))
sketch18.addConstraint(Sketcher.Constraint("DistanceY", 0, 2, 0, 1, 10.0))
sketch18.addConstraint(Sketcher.Constraint("DistanceX", 0, 2, -1, 1, 22.0))
sketch18.addConstraint(Sketcher.Constraint("DistanceY", -1, 1, 0, 2, 21.0))
pad11 = body18.newObject("PartDesign::Pad", "Pad010")
pad11.Profile = sketch18
pad11.Length = 3
body19 = doc.addObject("PartDesign::Body", "Body018")

sketch19 = body19.newObject("Sketcher::SketchObject", "Sketch018")
sketch19.AttachmentSupport = (doc.getObject("XY_Plane018"), [""])
sketch19.MapMode = "FlatFace"
sketch19.AttachmentOffset = App.Placement(V(0, 0, 30), App.Rotation())
sketch19.addGeometry(Part.Circle(V(0, 1, 0), V(0, 0, 1), 12), False)
sketch19.addConstraint(Sketcher.Constraint("PointOnObject", 0, 3, -2))
sketch19.addConstraint(Sketcher.Constraint("Diameter", 0, 24.0))
sketch19.addConstraint(Sketcher.Constraint("DistanceY", -1, 1, 0, 3, 1.0))
pad12 = body19.newObject("PartDesign::Pad", "Pad011")
pad12.Profile = sketch19
pad12.Length = 3
body20 = doc.addObject("PartDesign::Body", "Body019")

sketch20 = body20.newObject("Sketcher::SketchObject", "Sketch019")
sketch20.AttachmentSupport = (doc.getObject("XY_Plane019"), [""])
sketch20.MapMode = "FlatFace"
sketch20.AttachmentOffset = App.Placement(V(0, 0, 30), App.Rotation())
sketch20.addGeometry(Part.Circle(V(-15.5, 15, 0), V(0, 0, 1), 1.7), False)
sketch20.addConstraint(Sketcher.Constraint("Diameter", 0, 3.4))
sketch20.addConstraint(Sketcher.Constraint("DistanceY", -1, 1, 0, 3, 15.0))
sketch20.addConstraint(Sketcher.Constraint("DistanceX", 0, 3, -1, 1, 15.5))
pad13 = body20.newObject("PartDesign::Pad", "Pad012")
pad13.Profile = sketch20
pad13.Length = 3
body21 = doc.addObject("PartDesign::Body", "Body020")

sketch21 = body21.newObject("Sketcher::SketchObject", "Sketch020")
sketch21.AttachmentSupport = (doc.getObject("XY_Plane020"), [""])
sketch21.MapMode = "FlatFace"
sketch21.AttachmentOffset = App.Placement(V(0, 0, 30), App.Rotation())
sketch21.addGeometry(Part.Circle(V(-16.5, -15, 0), V(0, 0, 1), 2), False)
sketch21.addConstraint(Sketcher.Constraint("Diameter", 0, 4.0))
sketch21.addConstraint(Sketcher.Constraint("DistanceY", 0, 3, -1, 1, 15.0))
sketch21.addConstraint(Sketcher.Constraint("DistanceX", 0, 3, -1, 1, 16.5))
pad14 = body21.newObject("PartDesign::Pad", "Pad013")
pad14.Profile = sketch21
pad14.Length = 3
body22 = doc.addObject("PartDesign::Body", "Body021")

sketch22 = body22.newObject("Sketcher::SketchObject", "Sketch021")
sketch22.AttachmentSupport = (doc.getObject("XY_Plane021"), [""])
sketch22.MapMode = "FlatFace"
sketch22.AttachmentOffset = App.Placement(V(0, 0, 30), App.Rotation())
sketch22.addGeometry(Part.Circle(V(16.5, -15, 0), V(0, 0, 1), 2), False)
sketch22.addConstraint(Sketcher.Constraint("Diameter", 0, 4.0))
sketch22.addConstraint(Sketcher.Constraint("DistanceY", 0, 3, -1, 1, 15.0))
sketch22.addConstraint(Sketcher.Constraint("DistanceX", -1, 1, 0, 3, 16.5))
pad15 = body22.newObject("PartDesign::Pad", "Pad014")
pad15.Profile = sketch22
pad15.Length = 3
body23 = doc.addObject("PartDesign::Body", "Body022")
body23.AllowCompound = True

sketch23 = body23.newObject("Sketcher::SketchObject", "Sketch022")
sketch23.AttachmentSupport = (doc.getObject("XY_Plane022"), [""])
sketch23.MapMode = "FlatFace"
sketch23.AttachmentOffset = App.Placement(V(0, 0, 30), App.Rotation())
sketch23.addGeometry(Part.Circle(V(15.5, 15, 0), V(0, 0, 1), 1.7), False)
sketch23.addConstraint(Sketcher.Constraint("Diameter", 0, 3.4))
sketch23.addConstraint(Sketcher.Constraint("DistanceY", -1, 1, 0, 3, 15.0))
sketch23.addConstraint(Sketcher.Constraint("DistanceX", -1, 1, 0, 3, 15.5))
pad16 = body23.newObject("PartDesign::Pad", "Pad015")
pad16.Profile = sketch23
pad16.Length = 3
doc.recompute()

boolean12 = body23.newObject("PartDesign::Boolean", "Boolean011")
boolean12.Type = "Fuse"
boolean12.addObjects([body20])
doc.recompute()

boolean13 = body23.newObject("PartDesign::Boolean", "Boolean012")
boolean13.Type = "Fuse"
boolean13.addObjects([body21])
doc.recompute()

boolean14 = body23.newObject("PartDesign::Boolean", "Boolean013")
boolean14.Type = "Fuse"
boolean14.addObjects([body22])
body24 = doc.addObject("PartDesign::Body", "Body023")

sketch24 = body24.newObject("Sketcher::SketchObject", "Sketch023")
sketch24.AttachmentSupport = (doc.getObject("XY_Plane023"), [""])
sketch24.MapMode = "FlatFace"
sketch24.AttachmentOffset = App.Placement(V(0, 0, 30), App.Rotation())
sketch24.addGeometry(Part.Circle(V(0, 0, 0), V(0, 0, 1), 30), False)
sketch24.addConstraint(Sketcher.Constraint("Coincident", 0, 3, -1, 1))
sketch24.addConstraint(Sketcher.Constraint("Diameter", 0, 60.0))
pad17 = body24.newObject("PartDesign::Pad", "Pad016")
pad17.Profile = sketch24
pad17.Length = 3
body25 = doc.addObject("PartDesign::Body", "Body024")

sketch25 = body25.newObject("Sketcher::SketchObject", "Sketch024")
sketch25.AttachmentSupport = (doc.getObject("XY_Plane024"), [""])
sketch25.MapMode = "FlatFace"
sketch25.AttachmentOffset = App.Placement(V(0, 0, 18.5), App.Rotation())
sketch25.addGeometry(Part.LineSegment(V(16, -43, 0), V(16, -55, 0)), False)
sketch25.addGeometry(Part.LineSegment(V(16, -55, 0), V(21, -55, 0)), False)
sketch25.addGeometry(Part.LineSegment(V(21, -55, 0), V(21, -43, 0)), False)
sketch25.addGeometry(Part.LineSegment(V(21, -43, 0), V(16, -43, 0)), False)
sketch25.addConstraint(Sketcher.Constraint("Coincident", 0, 2, 1, 1))
sketch25.addConstraint(Sketcher.Constraint("Coincident", 1, 2, 2, 1))
sketch25.addConstraint(Sketcher.Constraint("Coincident", 2, 2, 3, 1))
sketch25.addConstraint(Sketcher.Constraint("Coincident", 3, 2, 0, 1))
sketch25.addConstraint(Sketcher.Constraint("Vertical", 0))
sketch25.addConstraint(Sketcher.Constraint("Horizontal", 1))
sketch25.addConstraint(Sketcher.Constraint("Vertical", 2))
sketch25.addConstraint(Sketcher.Constraint("Horizontal", 3))
sketch25.addConstraint(Sketcher.Constraint("DistanceX", 1, 1, 1, 2, 5.0))
sketch25.addConstraint(Sketcher.Constraint("DistanceY", 0, 2, 0, 1, 12.0))
sketch25.addConstraint(Sketcher.Constraint("DistanceX", -1, 1, 0, 2, 16.0))
sketch25.addConstraint(Sketcher.Constraint("DistanceY", 0, 2, -1, 1, 55.0))
pad18 = body25.newObject("PartDesign::Pad", "Pad017")
pad18.Profile = sketch25
pad18.Length = 14.5
doc.recompute()

fillet = body25.newObject("PartDesign::Fillet", "Fillet")
fillet.Base = (pad18, edges_at(pad18, [
    (16, -55, 25.75),
    (16, -43, 25.75),
    (16, -49, 18.5),
    (21, -55, 25.75),
    (21, -43, 25.75),
    (21, -49, 18.5),
    (18.5, -55, 18.5),
    (18.5, -43, 18.5),
]))
fillet.Radius = 1.5
body26 = doc.addObject("PartDesign::Body", "Body025")

sketch26 = body26.newObject("Sketcher::SketchObject", "Sketch025")
sketch26.AttachmentSupport = (doc.getObject("XY_Plane025"), [""])
sketch26.MapMode = "FlatFace"
sketch26.AttachmentOffset = App.Placement(V(0, 0, 18), App.Rotation())
sketch26.addGeometry(Part.Circle(V(25, -32, 0), V(0, 0, 1), 4), False)
sketch26.addConstraint(Sketcher.Constraint("Diameter", 0, 8.0))
sketch26.addConstraint(Sketcher.Constraint("DistanceX", -1, 1, 0, 3, 25.0))
sketch26.addConstraint(Sketcher.Constraint("DistanceY", 0, 3, -1, 1, 32.0))
pad19 = body26.newObject("PartDesign::Pad", "Pad018")
pad19.Profile = sketch26
pad19.Length = 15
body27 = doc.addObject("PartDesign::Body", "Body026")

sketch27 = body27.newObject("Sketcher::SketchObject", "Sketch026")
sketch27.AttachmentSupport = (doc.getObject("XY_Plane026"), [""])
sketch27.MapMode = "FlatFace"
sketch27.AttachmentOffset = App.Placement(V(0, 0, 18), App.Rotation())
sketch27.addGeometry(Part.Circle(V(-25, -32, 0), V(0, 0, 1), 4), False)
sketch27.addConstraint(Sketcher.Constraint("Diameter", 0, 8.0))
sketch27.addConstraint(Sketcher.Constraint("DistanceX", 0, 3, -1, 1, 25.0))
sketch27.addConstraint(Sketcher.Constraint("DistanceY", 0, 3, -1, 1, 32.0))
pad20 = body27.newObject("PartDesign::Pad", "Pad019")
pad20.Profile = sketch27
pad20.Length = 15
body28 = doc.addObject("PartDesign::Body", "Body027")
body28.AllowCompound = True

sketch28 = body28.newObject("Sketcher::SketchObject", "Sketch027")
sketch28.AttachmentSupport = (doc.getObject("XY_Plane027"), [""])
sketch28.MapMode = "FlatFace"
sketch28.AttachmentOffset = App.Placement(V(0, 0, 18), App.Rotation())
sketch28.addGeometry(Part.Circle(V(0, 17, 0), V(0, 0, 1), 4), False)
sketch28.addConstraint(Sketcher.Constraint("PointOnObject", 0, 3, -2))
sketch28.addConstraint(Sketcher.Constraint("Diameter", 0, 8.0))
sketch28.addConstraint(Sketcher.Constraint("DistanceY", -1, 1, 0, 3, 17.0))
pad21 = body28.newObject("PartDesign::Pad", "Pad020")
pad21.Profile = sketch28
pad21.Length = 15
doc.recompute()

boolean15 = body28.newObject("PartDesign::Boolean", "Boolean014")
boolean15.Type = "Fuse"
boolean15.addObjects([body26])
doc.recompute()

boolean16 = body28.newObject("PartDesign::Boolean", "Boolean015")
boolean16.Type = "Fuse"
boolean16.addObjects([body27])
body29 = doc.addObject("PartDesign::Body", "Body028")

sketch29 = body29.newObject("Sketcher::SketchObject", "Sketch028")
sketch29.AttachmentSupport = (doc.getObject("XY_Plane028"), [""])
sketch29.MapMode = "FlatFace"
sketch29.addGeometry(Part.Circle(V(0, 0, 0), V(0, 0, 1), 5), False)
sketch29.addConstraint(Sketcher.Constraint("Coincident", 0, 3, -1, 1))
sketch29.addConstraint(Sketcher.Constraint("Diameter", 0, 10.0))
pad22 = body29.newObject("PartDesign::Pad", "Pad021")
pad22.Profile = sketch29
pad22.Length = 15
body30 = doc.addObject("PartDesign::Body", "Body029")
doc.recompute()

body29.Placement = App.Placement(V(-30, -60, 18), App.Rotation(V(0, 0, 1), 215))
boolean17 = body30.newObject("PartDesign::Boolean", "Boolean016")
boolean17.Type = "Fuse"
boolean17.addObjects([body29])
body31 = doc.addObject("PartDesign::Body", "Body030")

sketch30 = body31.newObject("Sketcher::SketchObject", "Sketch029")
sketch30.AttachmentSupport = (doc.getObject("XY_Plane030"), [""])
sketch30.MapMode = "FlatFace"
sketch30.addGeometry(Part.Circle(V(0, 0, 0), V(0, 0, 1), 5), False)
sketch30.addConstraint(Sketcher.Constraint("Coincident", 0, 3, -1, 1))
sketch30.addConstraint(Sketcher.Constraint("Diameter", 0, 10.0))
pad23 = body31.newObject("PartDesign::Pad", "Pad022")
pad23.Profile = sketch30
pad23.Length = 15
body32 = doc.addObject("PartDesign::Body", "Body031")
doc.recompute()

body31.Placement = App.Placement(V(30, -60, 18), App.Rotation(V(0, 0, 1), 315))
boolean18 = body32.newObject("PartDesign::Boolean", "Boolean017")
boolean18.Type = "Fuse"
boolean18.addObjects([body31])
body33 = doc.addObject("PartDesign::Body", "Body032")

sketch31 = body33.newObject("Sketcher::SketchObject", "Sketch030")
sketch31.AttachmentSupport = (doc.getObject("XY_Plane032"), [""])
sketch31.MapMode = "FlatFace"
sketch31.AttachmentOffset = App.Placement(V(0, 0, 18), App.Rotation())
sketch31.addGeometry(Part.Circle(V(25, -5, 0), V(0, 0, 1), 5), False)
sketch31.addConstraint(Sketcher.Constraint("Diameter", 0, 10.0))
sketch31.addConstraint(Sketcher.Constraint("DistanceX", -1, 1, 0, 3, 25.0))
sketch31.addConstraint(Sketcher.Constraint("DistanceY", 0, 3, -1, 1, 5.0))
pad24 = body33.newObject("PartDesign::Pad", "Pad023")
pad24.Profile = sketch31
pad24.Length = 15
body34 = doc.addObject("PartDesign::Body", "Body033")
body34.AllowCompound = True

sketch32 = body34.newObject("Sketcher::SketchObject", "Sketch031")
sketch32.AttachmentSupport = (doc.getObject("XY_Plane033"), [""])
sketch32.MapMode = "FlatFace"
sketch32.AttachmentOffset = App.Placement(V(0, 0, 18), App.Rotation())
sketch32.addGeometry(Part.Circle(V(-25, -5, 0), V(0, 0, 1), 5), False)
sketch32.addConstraint(Sketcher.Constraint("Diameter", 0, 10.0))
sketch32.addConstraint(Sketcher.Constraint("DistanceX", 0, 3, -1, 1, 25.0))
sketch32.addConstraint(Sketcher.Constraint("DistanceY", 0, 3, -1, 1, 5.0))
pad25 = body34.newObject("PartDesign::Pad", "Pad024")
pad25.Profile = sketch32
pad25.Length = 15
doc.recompute()

boolean19 = body34.newObject("PartDesign::Boolean", "Boolean018")
boolean19.Type = "Fuse"
boolean19.addObjects([body30])
doc.recompute()

boolean20 = body34.newObject("PartDesign::Boolean", "Boolean019")
boolean20.Type = "Fuse"
boolean20.addObjects([body32])
doc.recompute()

boolean21 = body34.newObject("PartDesign::Boolean", "Boolean020")
boolean21.Type = "Fuse"
boolean21.addObjects([body33])
body35 = doc.addObject("PartDesign::Body", "Body034")

sketch33 = body35.newObject("Sketcher::SketchObject", "Sketch032")
sketch33.AttachmentSupport = (doc.getObject("XY_Plane034"), [""])
sketch33.MapMode = "FlatFace"
sketch33.AttachmentOffset = App.Placement(V(0, 0, 28), App.Rotation())
sketch33.addGeometry(Part.Circle(V(-17, -46, 0), V(0, 0, 1), 4), False)
sketch33.addConstraint(Sketcher.Constraint("Diameter", 0, 8.0))
sketch33.addConstraint(Sketcher.Constraint("DistanceX", 0, 3, -1, 1, 17.0))
sketch33.addConstraint(Sketcher.Constraint("DistanceY", 0, 3, -1, 1, 46.0))
pad26 = body35.newObject("PartDesign::Pad", "Pad025")
pad26.Profile = sketch33
pad26.Length = 2
body36 = doc.addObject("PartDesign::Body", "Body035")

sketch34 = body36.newObject("Sketcher::SketchObject", "Sketch033")
sketch34.AttachmentSupport = (doc.getObject("XY_Plane035"), [""])
sketch34.MapMode = "FlatFace"
sketch34.AttachmentOffset = App.Placement(V(0, 0, 30), App.Rotation())
sketch34.addGeometry(Part.LineSegment(V(-30, 0, 0), V(-30, -60, 0)), False)
sketch34.addGeometry(Part.LineSegment(V(-30, -60, 0), V(30, -60, 0)), False)
sketch34.addGeometry(Part.LineSegment(V(30, -60, 0), V(30, 0, 0)), False)
sketch34.addGeometry(Part.LineSegment(V(30, 0, 0), V(-30, 0, 0)), False)
sketch34.addConstraint(Sketcher.Constraint("Coincident", 0, 2, 1, 1))
sketch34.addConstraint(Sketcher.Constraint("Coincident", 1, 2, 2, 1))
sketch34.addConstraint(Sketcher.Constraint("Coincident", 2, 2, 3, 1))
sketch34.addConstraint(Sketcher.Constraint("Coincident", 3, 2, 0, 1))
sketch34.addConstraint(Sketcher.Constraint("Vertical", 0))
sketch34.addConstraint(Sketcher.Constraint("Horizontal", 1))
sketch34.addConstraint(Sketcher.Constraint("Vertical", 2))
sketch34.addConstraint(Sketcher.Constraint("Horizontal", 3))
sketch34.addConstraint(Sketcher.Constraint("Symmetric", 2, 2, 3, 2, -1, 1))
sketch34.addConstraint(Sketcher.Constraint("Equal", 3, 0))
sketch34.addConstraint(Sketcher.Constraint("DistanceX", 1, 1, 1, 2, 60.0))
pad27 = body36.newObject("PartDesign::Pad", "Pad026")
pad27.Profile = sketch34
pad27.Length = 3
doc.recompute()

boolean22 = body36.newObject("PartDesign::Boolean", "Boolean021")
boolean22.Type = "Fuse"
boolean22.addObjects([body24])
doc.recompute()

boolean23 = body36.newObject("PartDesign::Boolean", "Boolean022")
boolean23.Type = "Fuse"
boolean23.addObjects([body25])
doc.recompute()

boolean24 = body36.newObject("PartDesign::Boolean", "Boolean023")
boolean24.Type = "Fuse"
boolean24.addObjects([body28])
doc.recompute()

boolean25 = body36.newObject("PartDesign::Boolean", "Boolean024")
boolean25.Type = "Fuse"
boolean25.addObjects([body34])
doc.recompute()

boolean26 = body36.newObject("PartDesign::Boolean", "Boolean025")
boolean26.Type = "Fuse"
boolean26.addObjects([body35])
doc.recompute()

boolean27 = body36.newObject("PartDesign::Boolean", "Boolean026")
boolean27.Type = "Cut"
boolean27.addObjects([body23])
doc.recompute()

boolean28 = body36.newObject("PartDesign::Boolean", "Boolean027")
boolean28.Type = "Cut"
boolean28.addObjects([body19])
doc.recompute()

boolean29 = body36.newObject("PartDesign::Boolean", "Boolean028")
boolean29.Type = "Cut"
boolean29.addObjects([body18])
doc.recompute()

boolean30 = body36.newObject("PartDesign::Boolean", "Boolean029")
boolean30.Type = "Cut"
boolean30.addObjects([body17])
doc.recompute()

boolean31 = body36.newObject("PartDesign::Boolean", "Boolean030")
boolean31.Type = "Cut"
boolean31.addObjects([body16])
doc.recompute()

boolean32 = body36.newObject("PartDesign::Boolean", "Boolean031")
boolean32.Type = "Cut"
boolean32.addObjects([body15])
doc.recompute()

boolean33 = body36.newObject("PartDesign::Boolean", "Boolean032")
boolean33.Type = "Cut"
boolean33.addObjects([body11])
doc.recompute()

boolean34 = body36.newObject("PartDesign::Boolean", "Boolean033")
boolean34.Type = "Cut"
boolean34.addObjects([body8])
doc.recompute()

boolean35 = body36.newObject("PartDesign::Boolean", "Boolean034")
boolean35.Type = "Cut"
boolean35.addObjects([body4])
doc.recompute()

fillet2 = body36.newObject("PartDesign::Fillet", "Fillet001")
fillet2.Base = (boolean35, edges_at(boolean35, [
    (30, -55, 31.5),
    (25, -60, 31.5),
    (-25, -60, 31.5),
    (-30, -55, 31.5),
]))
fillet2.Radius = 10

doc.recompute()
